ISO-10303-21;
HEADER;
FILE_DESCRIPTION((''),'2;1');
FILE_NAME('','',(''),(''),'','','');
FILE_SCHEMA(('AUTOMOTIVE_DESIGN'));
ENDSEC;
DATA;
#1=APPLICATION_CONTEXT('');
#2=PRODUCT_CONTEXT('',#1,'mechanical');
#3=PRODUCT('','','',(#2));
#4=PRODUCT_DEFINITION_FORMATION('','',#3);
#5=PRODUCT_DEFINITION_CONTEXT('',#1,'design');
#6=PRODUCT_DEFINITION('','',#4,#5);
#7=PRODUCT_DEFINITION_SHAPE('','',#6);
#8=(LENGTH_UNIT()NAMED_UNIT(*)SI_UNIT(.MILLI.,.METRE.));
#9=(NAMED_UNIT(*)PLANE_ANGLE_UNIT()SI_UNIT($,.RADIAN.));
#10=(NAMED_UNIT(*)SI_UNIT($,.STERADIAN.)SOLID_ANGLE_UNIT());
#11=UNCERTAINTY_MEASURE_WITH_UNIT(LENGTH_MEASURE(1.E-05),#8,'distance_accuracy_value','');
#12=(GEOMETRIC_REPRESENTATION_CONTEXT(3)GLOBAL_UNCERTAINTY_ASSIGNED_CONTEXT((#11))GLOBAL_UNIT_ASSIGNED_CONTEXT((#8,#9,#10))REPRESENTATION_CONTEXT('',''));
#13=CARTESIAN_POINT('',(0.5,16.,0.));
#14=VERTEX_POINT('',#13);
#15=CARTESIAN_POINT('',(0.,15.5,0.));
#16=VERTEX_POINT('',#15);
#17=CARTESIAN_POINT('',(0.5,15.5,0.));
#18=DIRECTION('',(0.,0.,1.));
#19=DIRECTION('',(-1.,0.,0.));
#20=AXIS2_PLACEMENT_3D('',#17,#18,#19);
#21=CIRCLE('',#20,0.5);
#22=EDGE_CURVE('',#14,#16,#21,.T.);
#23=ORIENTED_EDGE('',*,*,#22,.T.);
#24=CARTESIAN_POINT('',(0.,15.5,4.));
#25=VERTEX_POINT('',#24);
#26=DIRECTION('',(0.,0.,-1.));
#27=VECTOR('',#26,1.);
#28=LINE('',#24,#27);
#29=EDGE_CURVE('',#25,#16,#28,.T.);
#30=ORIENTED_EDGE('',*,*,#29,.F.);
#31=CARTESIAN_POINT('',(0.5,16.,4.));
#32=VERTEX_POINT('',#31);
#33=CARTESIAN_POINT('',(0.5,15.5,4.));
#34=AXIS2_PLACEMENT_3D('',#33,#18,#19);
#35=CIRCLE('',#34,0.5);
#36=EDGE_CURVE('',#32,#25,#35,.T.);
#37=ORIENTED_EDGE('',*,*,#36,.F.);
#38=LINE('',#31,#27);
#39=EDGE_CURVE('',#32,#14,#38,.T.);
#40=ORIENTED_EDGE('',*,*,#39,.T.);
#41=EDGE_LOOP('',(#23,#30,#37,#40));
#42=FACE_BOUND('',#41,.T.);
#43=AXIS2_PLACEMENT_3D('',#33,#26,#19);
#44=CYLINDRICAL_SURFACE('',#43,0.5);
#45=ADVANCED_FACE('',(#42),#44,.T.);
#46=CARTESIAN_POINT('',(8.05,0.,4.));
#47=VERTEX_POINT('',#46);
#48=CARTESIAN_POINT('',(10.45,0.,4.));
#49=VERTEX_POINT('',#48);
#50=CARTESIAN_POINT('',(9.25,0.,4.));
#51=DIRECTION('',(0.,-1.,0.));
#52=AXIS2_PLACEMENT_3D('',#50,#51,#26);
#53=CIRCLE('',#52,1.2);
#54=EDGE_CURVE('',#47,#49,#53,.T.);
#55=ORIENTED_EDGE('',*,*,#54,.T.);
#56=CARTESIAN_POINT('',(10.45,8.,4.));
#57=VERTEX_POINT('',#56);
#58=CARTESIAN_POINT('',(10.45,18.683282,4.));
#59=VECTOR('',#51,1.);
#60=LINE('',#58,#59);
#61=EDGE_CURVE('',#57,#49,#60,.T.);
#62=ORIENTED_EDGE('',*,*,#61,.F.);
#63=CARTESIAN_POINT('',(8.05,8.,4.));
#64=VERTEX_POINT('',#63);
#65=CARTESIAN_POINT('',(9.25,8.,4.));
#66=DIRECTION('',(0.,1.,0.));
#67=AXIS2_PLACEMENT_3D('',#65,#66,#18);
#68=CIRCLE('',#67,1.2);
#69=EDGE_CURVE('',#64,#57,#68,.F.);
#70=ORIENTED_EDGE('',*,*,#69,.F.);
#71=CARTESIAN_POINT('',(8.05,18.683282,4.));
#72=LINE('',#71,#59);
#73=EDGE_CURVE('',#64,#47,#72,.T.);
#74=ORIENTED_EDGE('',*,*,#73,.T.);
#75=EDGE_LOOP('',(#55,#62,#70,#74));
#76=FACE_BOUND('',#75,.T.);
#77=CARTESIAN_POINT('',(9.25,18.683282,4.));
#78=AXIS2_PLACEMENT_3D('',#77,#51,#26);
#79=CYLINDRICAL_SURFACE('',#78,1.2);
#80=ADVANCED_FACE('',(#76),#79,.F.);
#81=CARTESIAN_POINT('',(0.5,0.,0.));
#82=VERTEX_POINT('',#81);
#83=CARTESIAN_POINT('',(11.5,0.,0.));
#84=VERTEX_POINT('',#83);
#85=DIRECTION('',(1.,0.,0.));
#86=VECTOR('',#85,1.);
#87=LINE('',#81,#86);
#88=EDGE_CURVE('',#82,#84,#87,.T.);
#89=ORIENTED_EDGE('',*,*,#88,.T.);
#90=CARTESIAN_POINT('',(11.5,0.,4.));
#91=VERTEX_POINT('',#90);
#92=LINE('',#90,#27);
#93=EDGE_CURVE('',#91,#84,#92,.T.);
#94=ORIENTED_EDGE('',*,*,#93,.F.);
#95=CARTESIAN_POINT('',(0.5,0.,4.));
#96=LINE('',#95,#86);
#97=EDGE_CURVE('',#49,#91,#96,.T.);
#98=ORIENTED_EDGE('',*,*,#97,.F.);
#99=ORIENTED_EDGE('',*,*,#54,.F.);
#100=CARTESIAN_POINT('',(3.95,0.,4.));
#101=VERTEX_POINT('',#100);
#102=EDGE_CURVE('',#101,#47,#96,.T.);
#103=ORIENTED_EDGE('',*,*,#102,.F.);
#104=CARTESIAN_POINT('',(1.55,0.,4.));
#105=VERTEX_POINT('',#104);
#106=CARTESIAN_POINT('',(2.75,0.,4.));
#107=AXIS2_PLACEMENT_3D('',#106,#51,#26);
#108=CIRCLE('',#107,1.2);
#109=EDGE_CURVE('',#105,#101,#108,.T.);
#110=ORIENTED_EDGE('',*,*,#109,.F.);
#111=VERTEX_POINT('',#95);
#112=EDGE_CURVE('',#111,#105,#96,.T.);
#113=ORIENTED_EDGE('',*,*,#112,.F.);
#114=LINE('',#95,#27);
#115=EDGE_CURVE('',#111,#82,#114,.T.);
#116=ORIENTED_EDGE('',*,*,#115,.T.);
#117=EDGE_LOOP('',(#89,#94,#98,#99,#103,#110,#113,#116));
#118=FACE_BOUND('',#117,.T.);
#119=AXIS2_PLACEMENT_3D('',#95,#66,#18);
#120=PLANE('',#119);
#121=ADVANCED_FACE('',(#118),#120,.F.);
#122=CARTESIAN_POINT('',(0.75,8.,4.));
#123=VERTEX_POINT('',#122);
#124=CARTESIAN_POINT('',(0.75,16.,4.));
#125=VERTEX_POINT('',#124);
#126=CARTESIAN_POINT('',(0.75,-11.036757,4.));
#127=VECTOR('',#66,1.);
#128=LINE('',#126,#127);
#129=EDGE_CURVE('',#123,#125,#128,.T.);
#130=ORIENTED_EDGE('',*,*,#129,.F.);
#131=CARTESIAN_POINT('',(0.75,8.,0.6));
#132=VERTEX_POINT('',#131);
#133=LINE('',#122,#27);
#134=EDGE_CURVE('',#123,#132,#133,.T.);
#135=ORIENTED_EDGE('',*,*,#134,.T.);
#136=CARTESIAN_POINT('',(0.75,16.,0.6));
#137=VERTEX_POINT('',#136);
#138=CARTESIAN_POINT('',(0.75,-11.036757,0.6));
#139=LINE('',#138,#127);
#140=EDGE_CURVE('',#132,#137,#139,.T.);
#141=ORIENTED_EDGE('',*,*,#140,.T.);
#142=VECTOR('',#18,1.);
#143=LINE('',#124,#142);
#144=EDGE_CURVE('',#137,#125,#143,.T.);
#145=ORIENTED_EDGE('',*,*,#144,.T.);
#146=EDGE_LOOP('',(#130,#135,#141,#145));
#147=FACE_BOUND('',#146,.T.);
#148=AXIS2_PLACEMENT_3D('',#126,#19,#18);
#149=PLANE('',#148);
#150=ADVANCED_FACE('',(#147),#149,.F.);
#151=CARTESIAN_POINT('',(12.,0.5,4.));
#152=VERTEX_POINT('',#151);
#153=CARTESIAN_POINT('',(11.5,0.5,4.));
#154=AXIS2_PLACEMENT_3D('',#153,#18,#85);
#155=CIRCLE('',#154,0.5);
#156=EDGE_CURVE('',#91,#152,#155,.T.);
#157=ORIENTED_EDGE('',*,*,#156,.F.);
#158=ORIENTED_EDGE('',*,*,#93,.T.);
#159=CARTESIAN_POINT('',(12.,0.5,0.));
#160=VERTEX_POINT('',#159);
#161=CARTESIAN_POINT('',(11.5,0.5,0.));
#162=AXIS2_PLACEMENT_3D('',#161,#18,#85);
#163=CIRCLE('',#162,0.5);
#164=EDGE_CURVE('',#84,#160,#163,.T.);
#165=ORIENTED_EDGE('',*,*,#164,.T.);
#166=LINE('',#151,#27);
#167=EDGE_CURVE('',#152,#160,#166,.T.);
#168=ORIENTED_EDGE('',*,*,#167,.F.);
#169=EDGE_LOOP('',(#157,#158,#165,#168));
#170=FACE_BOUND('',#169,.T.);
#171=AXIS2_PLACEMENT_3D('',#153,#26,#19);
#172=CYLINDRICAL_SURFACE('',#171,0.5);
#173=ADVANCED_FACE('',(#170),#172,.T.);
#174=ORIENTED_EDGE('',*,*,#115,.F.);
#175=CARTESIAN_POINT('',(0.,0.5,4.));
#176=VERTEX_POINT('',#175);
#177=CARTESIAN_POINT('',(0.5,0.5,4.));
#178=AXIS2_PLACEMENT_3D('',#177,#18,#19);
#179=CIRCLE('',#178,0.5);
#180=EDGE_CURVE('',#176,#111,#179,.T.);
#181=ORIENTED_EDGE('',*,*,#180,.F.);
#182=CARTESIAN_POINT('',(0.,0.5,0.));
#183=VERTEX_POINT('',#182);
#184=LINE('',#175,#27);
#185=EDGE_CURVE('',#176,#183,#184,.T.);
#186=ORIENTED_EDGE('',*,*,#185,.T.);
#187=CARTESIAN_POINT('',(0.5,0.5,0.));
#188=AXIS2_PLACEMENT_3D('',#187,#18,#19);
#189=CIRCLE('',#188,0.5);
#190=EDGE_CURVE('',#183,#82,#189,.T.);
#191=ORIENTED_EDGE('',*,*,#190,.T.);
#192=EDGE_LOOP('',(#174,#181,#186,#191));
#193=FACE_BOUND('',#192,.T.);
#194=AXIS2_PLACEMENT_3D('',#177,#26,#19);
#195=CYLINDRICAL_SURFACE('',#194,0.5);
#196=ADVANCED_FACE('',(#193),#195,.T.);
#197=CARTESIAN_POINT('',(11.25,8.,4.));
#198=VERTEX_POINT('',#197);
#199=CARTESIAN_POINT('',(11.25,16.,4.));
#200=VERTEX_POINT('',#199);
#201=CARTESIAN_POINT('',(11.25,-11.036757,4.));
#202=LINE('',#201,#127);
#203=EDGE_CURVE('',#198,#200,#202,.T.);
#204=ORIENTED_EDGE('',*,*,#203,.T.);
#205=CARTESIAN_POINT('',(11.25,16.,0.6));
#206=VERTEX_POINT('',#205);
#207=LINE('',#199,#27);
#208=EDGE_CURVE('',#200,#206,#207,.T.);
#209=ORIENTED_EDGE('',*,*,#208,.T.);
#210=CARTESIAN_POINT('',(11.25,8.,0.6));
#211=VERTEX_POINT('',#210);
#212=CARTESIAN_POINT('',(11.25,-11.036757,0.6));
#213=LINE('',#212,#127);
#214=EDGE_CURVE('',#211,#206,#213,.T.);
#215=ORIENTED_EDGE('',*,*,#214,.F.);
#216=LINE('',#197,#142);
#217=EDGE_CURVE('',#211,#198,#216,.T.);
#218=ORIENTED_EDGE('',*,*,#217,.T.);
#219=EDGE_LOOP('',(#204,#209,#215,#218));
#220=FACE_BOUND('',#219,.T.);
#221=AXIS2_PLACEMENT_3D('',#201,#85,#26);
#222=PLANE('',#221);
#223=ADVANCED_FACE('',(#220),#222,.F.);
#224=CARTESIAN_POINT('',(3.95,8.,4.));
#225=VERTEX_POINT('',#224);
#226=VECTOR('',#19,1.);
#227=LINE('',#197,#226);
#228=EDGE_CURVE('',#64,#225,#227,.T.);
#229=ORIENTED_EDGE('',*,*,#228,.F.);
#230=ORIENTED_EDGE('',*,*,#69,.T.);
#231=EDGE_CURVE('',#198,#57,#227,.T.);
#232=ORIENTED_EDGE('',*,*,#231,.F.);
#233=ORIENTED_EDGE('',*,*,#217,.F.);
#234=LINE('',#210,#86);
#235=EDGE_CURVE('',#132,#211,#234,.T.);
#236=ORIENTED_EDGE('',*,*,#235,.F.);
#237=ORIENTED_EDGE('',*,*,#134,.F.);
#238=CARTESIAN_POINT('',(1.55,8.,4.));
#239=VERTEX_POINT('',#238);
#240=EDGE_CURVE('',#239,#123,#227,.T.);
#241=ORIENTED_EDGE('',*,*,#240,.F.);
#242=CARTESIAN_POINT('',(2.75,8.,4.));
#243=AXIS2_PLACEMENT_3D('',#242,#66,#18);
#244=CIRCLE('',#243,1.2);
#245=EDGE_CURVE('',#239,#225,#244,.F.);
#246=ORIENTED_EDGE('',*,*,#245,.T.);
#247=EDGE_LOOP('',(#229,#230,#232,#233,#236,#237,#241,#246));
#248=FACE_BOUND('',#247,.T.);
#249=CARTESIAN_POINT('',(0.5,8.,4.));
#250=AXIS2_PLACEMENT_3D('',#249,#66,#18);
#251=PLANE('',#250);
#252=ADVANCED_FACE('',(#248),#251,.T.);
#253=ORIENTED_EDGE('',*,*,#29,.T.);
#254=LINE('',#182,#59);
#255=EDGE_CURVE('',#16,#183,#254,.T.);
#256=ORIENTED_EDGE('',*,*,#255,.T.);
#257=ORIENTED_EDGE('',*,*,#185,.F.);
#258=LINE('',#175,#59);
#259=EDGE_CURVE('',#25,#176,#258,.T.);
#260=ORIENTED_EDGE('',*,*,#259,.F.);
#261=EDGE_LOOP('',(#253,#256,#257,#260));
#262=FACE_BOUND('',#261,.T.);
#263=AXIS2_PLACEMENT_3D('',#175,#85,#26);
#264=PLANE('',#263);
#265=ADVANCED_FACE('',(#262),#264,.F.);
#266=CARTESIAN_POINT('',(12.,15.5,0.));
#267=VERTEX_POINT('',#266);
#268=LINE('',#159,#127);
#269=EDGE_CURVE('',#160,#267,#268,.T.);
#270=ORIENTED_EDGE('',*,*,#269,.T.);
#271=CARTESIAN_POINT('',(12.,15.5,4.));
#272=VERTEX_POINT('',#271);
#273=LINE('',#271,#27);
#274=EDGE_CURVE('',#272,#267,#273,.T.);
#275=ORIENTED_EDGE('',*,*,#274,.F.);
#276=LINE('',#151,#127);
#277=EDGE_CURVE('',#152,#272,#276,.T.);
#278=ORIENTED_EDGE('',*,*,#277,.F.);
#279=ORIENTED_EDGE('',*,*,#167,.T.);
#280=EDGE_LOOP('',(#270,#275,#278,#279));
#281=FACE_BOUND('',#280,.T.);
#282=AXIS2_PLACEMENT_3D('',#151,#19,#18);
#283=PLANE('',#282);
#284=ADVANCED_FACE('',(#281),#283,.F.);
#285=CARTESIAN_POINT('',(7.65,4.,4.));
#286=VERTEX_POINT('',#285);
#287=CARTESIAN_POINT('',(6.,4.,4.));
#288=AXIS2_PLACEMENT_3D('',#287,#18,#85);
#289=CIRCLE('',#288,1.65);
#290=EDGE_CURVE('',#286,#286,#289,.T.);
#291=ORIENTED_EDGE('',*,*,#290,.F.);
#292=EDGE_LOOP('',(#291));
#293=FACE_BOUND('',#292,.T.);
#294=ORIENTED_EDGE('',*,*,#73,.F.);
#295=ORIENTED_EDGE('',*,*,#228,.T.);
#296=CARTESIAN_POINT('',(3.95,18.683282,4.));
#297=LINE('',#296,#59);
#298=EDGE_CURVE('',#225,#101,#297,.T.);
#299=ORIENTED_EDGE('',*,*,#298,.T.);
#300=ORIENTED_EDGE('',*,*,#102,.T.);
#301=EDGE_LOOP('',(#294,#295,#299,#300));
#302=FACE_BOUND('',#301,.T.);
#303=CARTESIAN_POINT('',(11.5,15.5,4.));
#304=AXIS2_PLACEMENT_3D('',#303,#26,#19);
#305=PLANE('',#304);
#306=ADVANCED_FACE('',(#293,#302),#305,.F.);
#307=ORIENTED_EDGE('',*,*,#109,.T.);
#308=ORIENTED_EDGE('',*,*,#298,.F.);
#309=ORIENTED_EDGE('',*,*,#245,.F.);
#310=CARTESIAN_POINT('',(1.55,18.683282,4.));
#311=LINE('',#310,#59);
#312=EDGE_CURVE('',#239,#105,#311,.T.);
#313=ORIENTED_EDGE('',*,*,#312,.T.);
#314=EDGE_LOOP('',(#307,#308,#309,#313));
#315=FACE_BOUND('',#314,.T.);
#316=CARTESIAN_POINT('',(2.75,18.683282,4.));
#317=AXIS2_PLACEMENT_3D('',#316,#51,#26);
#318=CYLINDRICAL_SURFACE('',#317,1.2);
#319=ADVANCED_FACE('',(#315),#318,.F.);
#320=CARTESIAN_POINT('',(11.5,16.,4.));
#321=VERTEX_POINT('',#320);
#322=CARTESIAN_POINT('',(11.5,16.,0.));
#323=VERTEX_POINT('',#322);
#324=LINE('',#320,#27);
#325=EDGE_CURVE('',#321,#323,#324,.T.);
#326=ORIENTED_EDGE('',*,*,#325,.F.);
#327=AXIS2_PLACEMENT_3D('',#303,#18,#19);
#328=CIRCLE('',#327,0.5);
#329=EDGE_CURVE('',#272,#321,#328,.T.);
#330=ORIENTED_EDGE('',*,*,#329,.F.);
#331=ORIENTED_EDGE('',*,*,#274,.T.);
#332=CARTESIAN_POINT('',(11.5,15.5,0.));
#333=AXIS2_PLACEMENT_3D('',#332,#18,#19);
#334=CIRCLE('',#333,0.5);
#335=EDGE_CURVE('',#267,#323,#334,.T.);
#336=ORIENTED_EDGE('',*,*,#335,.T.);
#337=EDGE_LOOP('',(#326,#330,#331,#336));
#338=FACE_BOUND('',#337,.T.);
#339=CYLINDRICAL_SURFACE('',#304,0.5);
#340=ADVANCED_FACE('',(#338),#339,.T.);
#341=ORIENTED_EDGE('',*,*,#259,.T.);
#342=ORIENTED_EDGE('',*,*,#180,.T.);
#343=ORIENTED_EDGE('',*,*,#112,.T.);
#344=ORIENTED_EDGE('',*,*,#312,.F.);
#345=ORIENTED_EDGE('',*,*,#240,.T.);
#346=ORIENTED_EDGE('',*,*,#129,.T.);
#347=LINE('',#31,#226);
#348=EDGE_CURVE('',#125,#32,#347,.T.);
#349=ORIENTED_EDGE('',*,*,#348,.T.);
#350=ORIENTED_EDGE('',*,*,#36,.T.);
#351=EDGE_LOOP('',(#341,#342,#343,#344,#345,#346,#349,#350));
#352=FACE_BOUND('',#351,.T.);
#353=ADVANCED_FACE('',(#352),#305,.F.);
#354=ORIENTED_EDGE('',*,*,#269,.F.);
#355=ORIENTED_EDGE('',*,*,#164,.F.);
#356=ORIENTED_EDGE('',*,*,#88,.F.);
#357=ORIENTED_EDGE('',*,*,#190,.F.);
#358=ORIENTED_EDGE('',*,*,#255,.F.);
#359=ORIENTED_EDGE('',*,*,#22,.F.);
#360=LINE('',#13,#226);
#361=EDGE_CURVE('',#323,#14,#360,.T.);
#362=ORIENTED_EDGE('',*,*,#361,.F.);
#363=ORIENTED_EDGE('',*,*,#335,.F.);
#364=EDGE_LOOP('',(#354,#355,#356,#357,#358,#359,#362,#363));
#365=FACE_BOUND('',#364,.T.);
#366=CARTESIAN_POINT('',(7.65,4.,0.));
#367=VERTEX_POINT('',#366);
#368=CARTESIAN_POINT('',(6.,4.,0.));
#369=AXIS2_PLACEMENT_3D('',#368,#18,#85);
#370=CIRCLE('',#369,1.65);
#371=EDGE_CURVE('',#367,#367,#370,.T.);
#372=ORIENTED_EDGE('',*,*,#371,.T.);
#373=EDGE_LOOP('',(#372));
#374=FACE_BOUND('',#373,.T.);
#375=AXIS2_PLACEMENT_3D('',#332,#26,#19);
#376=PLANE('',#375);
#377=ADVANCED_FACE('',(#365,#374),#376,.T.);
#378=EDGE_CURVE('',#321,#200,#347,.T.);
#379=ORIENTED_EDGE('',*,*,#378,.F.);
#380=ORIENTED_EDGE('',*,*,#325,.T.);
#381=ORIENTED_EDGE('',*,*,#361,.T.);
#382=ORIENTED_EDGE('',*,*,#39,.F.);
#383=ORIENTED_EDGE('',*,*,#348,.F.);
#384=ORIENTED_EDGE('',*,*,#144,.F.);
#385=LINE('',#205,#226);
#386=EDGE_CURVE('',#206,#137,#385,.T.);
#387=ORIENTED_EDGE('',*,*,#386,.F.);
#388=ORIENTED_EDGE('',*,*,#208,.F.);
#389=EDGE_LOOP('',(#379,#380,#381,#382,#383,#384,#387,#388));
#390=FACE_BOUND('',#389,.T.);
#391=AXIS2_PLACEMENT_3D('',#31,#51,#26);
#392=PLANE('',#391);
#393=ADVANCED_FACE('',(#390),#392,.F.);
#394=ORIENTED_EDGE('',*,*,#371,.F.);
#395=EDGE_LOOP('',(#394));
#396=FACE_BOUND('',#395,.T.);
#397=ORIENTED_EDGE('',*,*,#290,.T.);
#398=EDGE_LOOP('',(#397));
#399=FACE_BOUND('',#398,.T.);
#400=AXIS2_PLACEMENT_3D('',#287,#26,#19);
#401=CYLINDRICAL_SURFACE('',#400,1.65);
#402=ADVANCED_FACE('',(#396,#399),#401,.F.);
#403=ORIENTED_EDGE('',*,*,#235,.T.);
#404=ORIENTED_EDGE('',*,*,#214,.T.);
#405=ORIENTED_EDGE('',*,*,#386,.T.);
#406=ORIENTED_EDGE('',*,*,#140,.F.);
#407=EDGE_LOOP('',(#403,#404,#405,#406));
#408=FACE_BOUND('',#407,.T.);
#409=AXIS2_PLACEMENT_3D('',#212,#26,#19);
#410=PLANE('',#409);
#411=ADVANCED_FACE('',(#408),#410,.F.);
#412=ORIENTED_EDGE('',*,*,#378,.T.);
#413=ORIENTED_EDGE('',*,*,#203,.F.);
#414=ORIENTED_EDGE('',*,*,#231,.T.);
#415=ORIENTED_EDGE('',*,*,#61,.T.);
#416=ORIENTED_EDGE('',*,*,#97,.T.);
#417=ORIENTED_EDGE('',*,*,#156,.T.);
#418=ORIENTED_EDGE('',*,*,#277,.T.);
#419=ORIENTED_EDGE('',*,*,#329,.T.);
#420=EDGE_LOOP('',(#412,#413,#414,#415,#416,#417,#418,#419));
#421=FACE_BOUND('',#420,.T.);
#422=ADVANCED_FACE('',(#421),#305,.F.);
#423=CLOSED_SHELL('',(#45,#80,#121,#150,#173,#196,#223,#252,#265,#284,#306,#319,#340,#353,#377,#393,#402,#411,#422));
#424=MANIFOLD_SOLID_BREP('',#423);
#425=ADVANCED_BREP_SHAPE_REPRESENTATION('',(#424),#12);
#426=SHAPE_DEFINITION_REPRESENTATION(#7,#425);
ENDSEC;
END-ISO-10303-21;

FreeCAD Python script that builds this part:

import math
import FreeCAD as App
import Part
import Sketcher

V = App.Vector
Q = App.Units.Quantity

doc = App.newDocument("Part")
body = doc.addObject("PartDesign::Body", "Body")

# Sketch on XY plane
sketch1 = body.newObject("Sketcher::SketchObject", "Sketch")
sketch1.AttachmentSupport = (doc.getObject("XY_Plane"), [""])
sketch1.MapMode = "FlatFace"
sketch1.addGeometry([
    Part.LineSegment(V(0.5, 0, 0), V(11.5, 0, 0)),  # 0
    Part.ArcOfCircle(Part.Circle(V(11.5, 0.5, 0), V(0, 0, 1), 0.5), math.radians(-90), math.radians(0)),  # 1
    Part.LineSegment(V(12, 0.5, 0), V(12, 15.5, 0)),  # 2
    Part.ArcOfCircle(Part.Circle(V(11.5, 15.5, 0), V(0, 0, 1), 0.5), math.radians(0), math.radians(90)),  # 3
    Part.LineSegment(V(11.5, 16, 0), V(0.5, 16, 0)),  # 4
    Part.ArcOfCircle(Part.Circle(V(0.5, 15.5, 0), V(0, 0, 1), 0.5), math.radians(90), math.radians(180)),  # 5
    Part.LineSegment(V(0, 15.5, 0), V(0, 0.5, 0)),  # 6
    Part.ArcOfCircle(Part.Circle(V(0.5, 0.5, 0), V(0, 0, 1), 0.5), math.radians(180), math.radians(270)),  # 7
    Part.Circle(V(6, 4, 0), V(0, 0, 1), 1.65),  # 8
], False)
sketch1.addConstraint([
    Sketcher.Constraint("Tangent", 0, 2, 1, 1),
    Sketcher.Constraint("Tangent", 1, 2, 2, 1),
    Sketcher.Constraint("Tangent", 2, 2, 3, 1),
    Sketcher.Constraint("Tangent", 3, 2, 4, 1),
    Sketcher.Constraint("Tangent", 4, 2, 5, 1),
    Sketcher.Constraint("Tangent", 5, 2, 6, 1),
    Sketcher.Constraint("Tangent", 6, 2, 7, 1),
    Sketcher.Constraint("Tangent", 7, 2, 0, 1),
    Sketcher.Constraint("Horizontal", 0),
    Sketcher.Constraint("Vertical", 2),
    Sketcher.Constraint("Horizontal", 4),
    Sketcher.Constraint("Vertical", 6),
    Sketcher.Constraint("Equal", 1, 3),
    Sketcher.Constraint("Equal", 3, 5),
    Sketcher.Constraint("Equal", 5, 7),
    Sketcher.Constraint("PointOnObject", 0, 2, -1),
    Sketcher.Constraint("PointOnObject", 5, 2, -2),
    Sketcher.Constraint("Diameter", 8, Q("3.3 mm")),
    Sketcher.Constraint("Radius", 1, Q("0.5 mm")),
    Sketcher.Constraint("DistanceX", 0, 1, 0, 2, Q("11 mm")),
    Sketcher.Constraint("DistanceY", 2, 1, 2, 2, Q("15 mm")),
    Sketcher.Constraint("DistanceX", -1, 1, 8, 3, Q("6 mm")),
    Sketcher.Constraint("DistanceY", -1, 1, 8, 3, Q("4 mm")),
])
pad1 = body.newObject("PartDesign::Pad", "Pad")
pad1.Profile = sketch1
pad1.Length = 4

# Sketch on XZ plane
sketch2 = body.newObject("Sketcher::SketchObject", "Sketch001")
sketch2.AttachmentSupport = (doc.getObject("XZ_Plane"), [""])
sketch2.MapMode = "FlatFace"
sketch2.addGeometry([
    Part.LineSegment(V(4, 4, 0), V(1.6, 4, 0)),
    Part.ArcOfCircle(Part.Circle(V(2.8, 4, 0), V(0, 0, 1), 1.2), math.radians(180), math.radians(360)),
    Part.LineSegment(V(10.4, 4, 0), V(8.1, 4, 0)),
    Part.ArcOfCircle(Part.Circle(V(9.2, 4, 0), V(0, 0, 1), 1.2), math.radians(180), math.radians(360)),
], False)
sketch2.addConstraint([
    Sketcher.Constraint("Coincident", 0, 1, 1, 2),
    Sketcher.Constraint("Coincident", 1, 1, 0, 2),
    Sketcher.Constraint("Coincident", 2, 1, 3, 2),
    Sketcher.Constraint("Coincident", 3, 1, 2, 2),
    Sketcher.Constraint("Horizontal", 0),
    Sketcher.Constraint("Horizontal", 2),
    Sketcher.Constraint("Equal", 1, 3),
    Sketcher.Constraint("Horizontal", 1, 3, 3, 3),
    Sketcher.Constraint("Horizontal", 3, 3, 0, 1),
    Sketcher.Constraint("Horizontal", 1, 1, 2, 1),
    Sketcher.Constraint("Radius", 1, Q("1.2 mm")),
    Sketcher.Constraint("DistanceY", -1, 1, 1, 3, Q("4 mm")),
    Sketcher.Constraint("DistanceX", 1, 3, 3, 3, Q("6.5 mm")),
    Sketcher.Constraint("DistanceX", -1, 1, 1, 3, Q("2.75 mm")),
])
pocket1 = body.newObject("PartDesign::Pocket", "Pocket")
pocket1.Profile = sketch2
pocket1.Length = 16

# Sketch on XZ plane
sketch3 = body.newObject("Sketcher::SketchObject", "Sketch002")
sketch3.AttachmentSupport = (doc.getObject("XZ_Plane"), [""])
sketch3.MapMode = "FlatFace"
sketch3.AttachmentOffset = App.Placement(V(0, 0, -16), App.Rotation())
sketch3.addGeometry([
    Part.LineSegment(V(0.8, 0.6, 0), V(0.8, 4, 0)),
    Part.LineSegment(V(0.8, 4, 0), V(11.2, 4, 0)),
    Part.LineSegment(V(11.2, 4, 0), V(11.2, 0.6, 0)),
    Part.LineSegment(V(11.2, 0.6, 0), V(0.8, 0.6, 0)),
], False)
sketch3.addConstraint([
    Sketcher.Constraint("Coincident", 0, 2, 1, 1),
    Sketcher.Constraint("Coincident", 1, 2, 2, 1),
    Sketcher.Constraint("Coincident", 2, 2, 3, 1),
    Sketcher.Constraint("Coincident", 3, 2, 0, 1),
    Sketcher.Constraint("Vertical", 0),
    Sketcher.Constraint("Horizontal", 1),
    Sketcher.Constraint("Vertical", 2),
    Sketcher.Constraint("Horizontal", 3),
    Sketcher.Constraint("DistanceX", 1, 1, 1, 2, Q("10.5 mm")),
    Sketcher.Constraint("DistanceY", 0, 1, 0, 2, Q("3.4 mm")),
    Sketcher.Constraint("DistanceY", -1, 1, 0, 2, Q("4 mm")),
    Sketcher.Constraint("DistanceX", -1, 1, 0, 2, Q("0.75 mm")),
])
pocket2 = body.newObject("PartDesign::Pocket", "Pocket001")
pocket2.Profile = sketch3
pocket2.Length = 8
pocket2.Reversed = True

doc.recompute()
